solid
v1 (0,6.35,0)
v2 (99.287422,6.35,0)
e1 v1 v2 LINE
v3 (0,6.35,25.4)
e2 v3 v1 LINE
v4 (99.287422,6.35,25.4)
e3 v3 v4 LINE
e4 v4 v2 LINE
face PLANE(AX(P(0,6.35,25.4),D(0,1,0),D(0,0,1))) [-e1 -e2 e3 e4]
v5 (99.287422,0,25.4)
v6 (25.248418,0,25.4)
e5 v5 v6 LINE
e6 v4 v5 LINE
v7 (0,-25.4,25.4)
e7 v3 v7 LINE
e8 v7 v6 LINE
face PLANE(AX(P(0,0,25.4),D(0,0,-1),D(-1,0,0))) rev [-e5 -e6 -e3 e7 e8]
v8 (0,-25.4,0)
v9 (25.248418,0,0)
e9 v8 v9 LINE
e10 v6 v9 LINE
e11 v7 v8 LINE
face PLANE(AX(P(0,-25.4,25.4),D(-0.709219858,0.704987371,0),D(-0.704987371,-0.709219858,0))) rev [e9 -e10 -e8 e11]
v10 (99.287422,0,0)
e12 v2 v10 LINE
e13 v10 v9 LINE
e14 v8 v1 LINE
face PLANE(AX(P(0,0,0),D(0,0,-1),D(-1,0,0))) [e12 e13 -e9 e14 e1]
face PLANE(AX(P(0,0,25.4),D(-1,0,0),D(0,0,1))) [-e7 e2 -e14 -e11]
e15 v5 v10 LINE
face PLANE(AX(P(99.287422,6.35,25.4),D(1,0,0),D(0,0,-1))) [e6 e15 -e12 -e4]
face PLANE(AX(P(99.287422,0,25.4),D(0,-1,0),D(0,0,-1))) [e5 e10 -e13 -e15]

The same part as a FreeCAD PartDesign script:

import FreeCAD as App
import Part
import Sketcher
from FreeCAD import Vector
Q = App.Units.Quantity


def add_polygon(sketch, points):
    """Adds a closed chain of lines whose ends are joined by coincident constraints."""
    first, n = sketch.GeometryCount, len(points)
    for a, b in zip(points, points[1:] + points[:1]):
        sketch.addGeometry(Part.LineSegment(App.Vector(*a, 0), App.Vector(*b, 0)), False)
    for i in range(n):
        sketch.addConstraint(Sketcher.Constraint("Coincident", first + i, 2, first + (i + 1) % n, 1))

doc = App.newDocument("Part")
body = doc.addObject("PartDesign::Body", "Body")

# Sketch on XY plane
sketch1 = body.newObject("Sketcher::SketchObject", "Sketch")
sketch1.AttachmentSupport = (doc.getObject("XY_Plane"), [""])
sketch1.MapMode = "FlatFace"
add_polygon(sketch1, [(0, -25.4), (25.248418, 0), (99.287422, 0), (99.287422, 6.35), (0, 6.35)])  # lines 0-4
sketch1.addConstraint([
    Sketcher.Constraint("Horizontal", 1),
    Sketcher.Constraint("Vertical", 2),
    Sketcher.Constraint("Horizontal", 3),
    Sketcher.Constraint("Vertical", 4),
    Sketcher.Constraint("PointOnObject", 0, 2, -1),
    Sketcher.Constraint("PointOnObject", 3, 2, -2),
    Sketcher.Constraint("DistanceY", 4, 2, -1, 1, Q("1 in")),
    Sketcher.Constraint("DistanceY", 2, 1, 2, 2, Q("0.25 in")),
    Sketcher.Constraint("Distance", 0, Q("1.41 in")),
    Sketcher.Constraint("DistanceX", 1, 1, 1, 2, 74.039005),
])
pad1 = body.newObject("PartDesign::Pad", "Pad")
pad1.Profile = sketch1
pad1.Length = Q("1 in")

doc.recompute()
